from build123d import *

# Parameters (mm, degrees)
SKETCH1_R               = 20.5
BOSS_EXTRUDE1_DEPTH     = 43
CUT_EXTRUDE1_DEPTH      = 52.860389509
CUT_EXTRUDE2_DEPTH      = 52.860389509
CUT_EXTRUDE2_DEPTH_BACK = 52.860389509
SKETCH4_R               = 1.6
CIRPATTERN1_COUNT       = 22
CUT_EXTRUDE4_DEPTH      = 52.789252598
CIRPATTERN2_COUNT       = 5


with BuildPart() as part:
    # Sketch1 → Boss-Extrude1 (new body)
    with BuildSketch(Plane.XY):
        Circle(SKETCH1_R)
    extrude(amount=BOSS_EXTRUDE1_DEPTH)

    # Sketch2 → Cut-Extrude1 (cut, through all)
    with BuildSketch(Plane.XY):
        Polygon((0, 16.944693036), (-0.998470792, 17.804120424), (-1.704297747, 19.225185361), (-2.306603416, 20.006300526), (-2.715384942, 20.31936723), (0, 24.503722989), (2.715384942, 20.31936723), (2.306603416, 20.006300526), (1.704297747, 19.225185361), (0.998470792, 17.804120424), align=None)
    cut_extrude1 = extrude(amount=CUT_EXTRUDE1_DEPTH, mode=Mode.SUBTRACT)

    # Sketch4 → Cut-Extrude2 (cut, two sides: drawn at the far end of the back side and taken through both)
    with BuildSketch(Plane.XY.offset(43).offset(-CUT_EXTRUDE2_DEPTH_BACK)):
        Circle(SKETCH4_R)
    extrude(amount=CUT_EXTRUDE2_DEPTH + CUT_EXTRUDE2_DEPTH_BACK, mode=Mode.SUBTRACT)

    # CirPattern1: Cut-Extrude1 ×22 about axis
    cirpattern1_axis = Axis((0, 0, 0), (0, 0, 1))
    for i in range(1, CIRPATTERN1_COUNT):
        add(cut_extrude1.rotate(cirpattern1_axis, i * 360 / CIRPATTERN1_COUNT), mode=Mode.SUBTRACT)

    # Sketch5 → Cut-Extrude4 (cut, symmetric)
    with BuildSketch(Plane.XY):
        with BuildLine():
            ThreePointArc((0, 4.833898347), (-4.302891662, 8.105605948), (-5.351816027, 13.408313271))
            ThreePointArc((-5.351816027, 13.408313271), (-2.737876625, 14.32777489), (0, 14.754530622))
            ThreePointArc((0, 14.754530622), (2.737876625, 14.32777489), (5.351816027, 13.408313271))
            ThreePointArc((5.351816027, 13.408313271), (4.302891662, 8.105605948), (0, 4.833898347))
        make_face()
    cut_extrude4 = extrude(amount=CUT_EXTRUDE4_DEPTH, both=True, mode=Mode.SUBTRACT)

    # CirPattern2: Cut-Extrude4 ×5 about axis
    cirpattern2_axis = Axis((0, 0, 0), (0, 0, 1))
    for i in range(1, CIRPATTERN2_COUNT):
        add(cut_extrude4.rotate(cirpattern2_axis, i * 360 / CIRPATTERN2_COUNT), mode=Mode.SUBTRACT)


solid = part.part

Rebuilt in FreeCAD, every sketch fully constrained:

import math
import FreeCAD as App
import Part
import Sketcher
Q = App.Units.Quantity

doc = App.newDocument("Part")
body = doc.addObject("PartDesign::Body", "Body")

# Sketch on XY plane
sketch1 = doc.addObject("Sketcher::SketchObject", "Sketch")
body.addObject(sketch1)
sketch1.AttachmentSupport = (doc.XY_Plane, [""])
sketch1.MapMode = "FlatFace"
sketch1.addGeometry(Part.Circle(App.Vector(0, 0, 0), App.Vector(0, 0, 1), 20.5), False)
sketch1.addConstraint(Sketcher.Constraint("Coincident", 0, 3, -1, 1))
sketch1.addConstraint(Sketcher.Constraint("Diameter", 0, 41.0))
pad1 = doc.addObject("PartDesign::Pad", "Pad")
body.addObject(pad1)
pad1.Profile = sketch1
pad1.Length = 43

# Sketch on XY plane
sketch2 = doc.addObject("Sketcher::SketchObject", "Sketch001")
body.addObject(sketch2)
sketch2.AttachmentSupport = (doc.XY_Plane, [""])
sketch2.MapMode = "FlatFace"
sketch2.addGeometry(Part.LineSegment(App.Vector(-0.998471, 17.80412, 0), App.Vector(0, 16.944693, 0)), False)
sketch2.addGeometry(Part.LineSegment(App.Vector(0, 16.944693, 0), App.Vector(0.998471, 17.80412, 0)), False)
sketch2.addGeometry(Part.LineSegment(App.Vector(0.998471, 17.80412, 0), App.Vector(1.704298, 19.225185, 0)), False)
sketch2.addGeometry(Part.LineSegment(App.Vector(1.704298, 19.225185, 0), App.Vector(2.306603, 20.006301, 0)), False)
sketch2.addGeometry(Part.LineSegment(App.Vector(2.306603, 20.006301, 0), App.Vector(2.715385, 20.319367, 0)), False)
sketch2.addGeometry(Part.LineSegment(App.Vector(2.715385, 20.319367, 0), App.Vector(0, 24.503723, 0)), False)
sketch2.addGeometry(Part.LineSegment(App.Vector(0, 24.503723, 0), App.Vector(-2.715385, 20.319367, 0)), False)
sketch2.addGeometry(Part.LineSegment(App.Vector(-2.715385, 20.319367, 0), App.Vector(-2.306603, 20.006301, 0)), False)
sketch2.addGeometry(Part.LineSegment(App.Vector(-2.306603, 20.006301, 0), App.Vector(-1.704298, 19.225185, 0)), False)
sketch2.addGeometry(Part.LineSegment(App.Vector(-1.704298, 19.225185, 0), App.Vector(-0.998471, 17.80412, 0)), False)
sketch2.addConstraint(Sketcher.Constraint("Coincident", 0, 2, 1, 1))
sketch2.addConstraint(Sketcher.Constraint("Coincident", 1, 2, 2, 1))
sketch2.addConstraint(Sketcher.Constraint("Coincident", 2, 2, 3, 1))
sketch2.addConstraint(Sketcher.Constraint("Coincident", 3, 2, 4, 1))
sketch2.addConstraint(Sketcher.Constraint("Coincident", 4, 2, 5, 1))
sketch2.addConstraint(Sketcher.Constraint("Coincident", 5, 2, 6, 1))
sketch2.addConstraint(Sketcher.Constraint("Coincident", 6, 2, 7, 1))
sketch2.addConstraint(Sketcher.Constraint("Coincident", 7, 2, 8, 1))
sketch2.addConstraint(Sketcher.Constraint("Coincident", 8, 2, 9, 1))
sketch2.addConstraint(Sketcher.Constraint("Coincident", 9, 2, 0, 1))
sketch2.addConstraint(Sketcher.Constraint("Symmetric", 4, 2, 6, 2, -2))
sketch2.addConstraint(Sketcher.Constraint("Symmetric", 3, 2, 7, 2, -2))
sketch2.addConstraint(Sketcher.Constraint("Symmetric", 2, 2, 8, 2, -2))
sketch2.addConstraint(Sketcher.Constraint("Symmetric", 1, 2, 9, 2, -2))
sketch2.addConstraint(Sketcher.Constraint("PointOnObject", 0, 2, -2))
sketch2.addConstraint(Sketcher.Constraint("PointOnObject", 5, 2, -2))
sketch2.addConstraint(Sketcher.Constraint("Angle", 0, Q("-40.720015 deg")))
sketch2.addConstraint(Sketcher.Constraint("Distance", 2, 1.5867))
sketch2.addConstraint(Sketcher.Constraint("Distance", 5, 4.988201))
sketch2.addConstraint(Sketcher.Constraint("DistanceY", -1, 1, 3, 2, 20.006301))
sketch2.addConstraint(Sketcher.Constraint("DistanceX", 7, 2, 2, 2, 4.010901))
sketch2.addConstraint(Sketcher.Constraint("Distance", 4, 0.514891))
sketch2.addConstraint(Sketcher.Constraint("DistanceX", -1, 1, 1, 2, 0.998471))
sketch2.addConstraint(Sketcher.Constraint("DistanceY", -1, 1, 1, 2, 17.80412))
sketch2.addConstraint(Sketcher.Constraint("DistanceX", 3, 2, 4, 2, 0.408782))
sketch2.addConstraint(Sketcher.Constraint("DistanceY", 2, 2, 4, 2, 1.094182))
pocket1 = doc.addObject("PartDesign::Pocket", "Pocket")
body.addObject(pocket1)
pocket1.Profile = sketch2
pocket1.Type = "ThroughAll"
pocket1.Reversed = True

# Sketch on XY plane
sketch3 = doc.addObject("Sketcher::SketchObject", "Sketch002")
body.addObject(sketch3)
sketch3.AttachmentSupport = (doc.XY_Plane, [""])
sketch3.MapMode = "FlatFace"
sketch3.AttachmentOffset = App.Placement(App.Vector(0, 0, 43), App.Rotation())
sketch3.addGeometry(Part.Circle(App.Vector(0, 0, 0), App.Vector(0, 0, 1), 1.6), False)
sketch3.addConstraint(Sketcher.Constraint("Coincident", 0, 3, -1, 1))
sketch3.addConstraint(Sketcher.Constraint("Diameter", 0, 3.2))
pocket2 = doc.addObject("PartDesign::Pocket", "Pocket001")
body.addObject(pocket2)
pocket2.Profile = sketch3
pocket2.Type = "ThroughAll"
pocket2.Midplane = True
doc.recompute()

polarpattern = doc.addObject("PartDesign::PolarPattern", "PolarPattern")
body.addObject(polarpattern)
polarpattern.Originals = [pocket1]
polarpattern.Axis = (doc.Z_Axis, [""])
polarpattern.Angle = 360
polarpattern.Occurrences = 22
body.Tip = polarpattern

# Sketch on XY plane
sketch4 = doc.addObject("Sketcher::SketchObject", "Sketch003")
body.addObject(sketch4)
sketch4.AttachmentSupport = (doc.XY_Plane, [""])
sketch4.MapMode = "FlatFace"
sketch4.addGeometry(Part.ArcOfCircle(Part.Circle(App.Vector(2.159135, 12.138951, 0), App.Vector(0, 0, 1), 7.617458), math.radians(170.407568), math.radians(253.534042)), False)
sketch4.addGeometry(Part.ArcOfCircle(Part.Circle(App.Vector(-2.159135, 12.138951, 0), App.Vector(0, 0, 1), 7.617458), math.radians(-73.534042), math.radians(9.592432)), False)
sketch4.addGeometry(Part.ArcOfCircle(Part.Circle(App.Vector(-0.948791, -0.328379, 0), App.Vector(0, 0, 1), 15.112722), math.radians(65.360501), math.radians(86.400548)), False)
sketch4.addGeometry(Part.ArcOfCircle(Part.Circle(App.Vector(0.948791, -0.328379, 0), App.Vector(0, 0, 1), 15.112722), math.radians(93.599452), math.radians(114.639499)), False)
sketch4.addConstraint(Sketcher.Constraint("Coincident", 0, 2, 1, 1))
sketch4.addConstraint(Sketcher.Constraint("Coincident", 1, 2, 2, 1))
sketch4.addConstraint(Sketcher.Constraint("Coincident", 2, 2, 3, 1))
sketch4.addConstraint(Sketcher.Constraint("Coincident", 3, 2, 0, 1))
sketch4.addConstraint(Sketcher.Constraint("Equal", 0, 1))
sketch4.addConstraint(Sketcher.Constraint("Equal", 2, 3))
sketch4.addConstraint(Sketcher.Constraint("Symmetric", 0, 3, 1, 3, -2))
sketch4.addConstraint(Sketcher.Constraint("Symmetric", 2, 3, 3, 3, -2))
sketch4.addConstraint(Sketcher.Constraint("Radius", 0, 7.617458))
sketch4.addConstraint(Sketcher.Constraint("Radius", 2, 15.112722))
sketch4.addConstraint(Sketcher.Constraint("DistanceY", -1, 1, 0, 2, 4.833898))
sketch4.addConstraint(Sketcher.Constraint("DistanceY", -1, 1, 0, 3, 12.138951))
sketch4.addConstraint(Sketcher.Constraint("DistanceX", 2, 3, -1, 1, 0.948791))
sketch4.addConstraint(Sketcher.Constraint("DistanceY", 2, 3, -1, 1, 0.328379))
pocket3 = doc.addObject("PartDesign::Pocket", "Pocket002")
body.addObject(pocket3)
pocket3.Profile = sketch4
pocket3.Length = 105.578505
pocket3.Midplane = True
doc.recompute()

polarpattern2 = doc.addObject("PartDesign::PolarPattern", "PolarPattern001")
body.addObject(polarpattern2)
polarpattern2.Originals = [pocket3]
polarpattern2.Axis = (doc.Z_Axis, [""])
polarpattern2.Angle = 360
polarpattern2.Occurrences = 5
body.Tip = polarpattern2

doc.recompute()
